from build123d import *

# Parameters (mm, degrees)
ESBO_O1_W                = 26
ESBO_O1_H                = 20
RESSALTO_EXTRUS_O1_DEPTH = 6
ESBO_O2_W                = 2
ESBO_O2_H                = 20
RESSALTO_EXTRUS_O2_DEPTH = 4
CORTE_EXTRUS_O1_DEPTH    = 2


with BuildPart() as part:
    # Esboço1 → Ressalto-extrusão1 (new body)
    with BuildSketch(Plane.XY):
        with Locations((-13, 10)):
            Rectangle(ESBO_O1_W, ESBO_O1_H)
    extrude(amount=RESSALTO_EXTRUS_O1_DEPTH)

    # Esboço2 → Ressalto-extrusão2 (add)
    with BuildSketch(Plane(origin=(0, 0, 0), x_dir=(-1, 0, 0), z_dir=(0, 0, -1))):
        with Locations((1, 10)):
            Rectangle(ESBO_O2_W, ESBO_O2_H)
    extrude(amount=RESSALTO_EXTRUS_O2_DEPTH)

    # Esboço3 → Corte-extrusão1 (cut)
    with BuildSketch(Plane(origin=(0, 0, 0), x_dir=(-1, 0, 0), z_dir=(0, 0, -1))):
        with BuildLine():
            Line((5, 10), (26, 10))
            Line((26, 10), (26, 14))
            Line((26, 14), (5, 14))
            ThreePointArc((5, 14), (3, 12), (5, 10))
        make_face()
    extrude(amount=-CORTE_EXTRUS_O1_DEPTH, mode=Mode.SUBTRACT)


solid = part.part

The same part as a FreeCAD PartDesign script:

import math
import FreeCAD as App
import Part
import Sketcher
Q = App.Units.Quantity

doc = App.newDocument("Part")
body = doc.addObject("PartDesign::Body", "Body")

# Sketch on XY plane
sketch1 = body.newObject("Sketcher::SketchObject", "Sketch")
sketch1.AttachmentSupport = (doc.getObject("XY_Plane"), [""])
sketch1.MapMode = "FlatFace"
sketch1.addGeometry([
    Part.LineSegment(App.Vector(-26, 20, 0), App.Vector(-26, 0, 0)),
    Part.LineSegment(App.Vector(-26, 0, 0), App.Vector(0, 0, 0)),
    Part.LineSegment(App.Vector(0, 0, 0), App.Vector(0, 20, 0)),
    Part.LineSegment(App.Vector(0, 20, 0), App.Vector(-26, 20, 0)),
], False)
sketch1.addConstraint([
    Sketcher.Constraint("Coincident", 0, 2, 1, 1),
    Sketcher.Constraint("Coincident", 1, 2, 2, 1),
    Sketcher.Constraint("Coincident", 2, 2, 3, 1),
    Sketcher.Constraint("Coincident", 3, 2, 0, 1),
    Sketcher.Constraint("Vertical", 0),
    Sketcher.Constraint("Horizontal", 1),
    Sketcher.Constraint("Vertical", 2),
    Sketcher.Constraint("Horizontal", 3),
    Sketcher.Constraint("Coincident", 1, 2, -1, 1),
    Sketcher.Constraint("DistanceX", 1, 1, 1, 2, Q("26 mm")),
    Sketcher.Constraint("DistanceY", 0, 2, 0, 1, Q("20 mm")),
])
pad1 = body.newObject("PartDesign::Pad", "Pad")
pad1.Profile = sketch1
pad1.Length = 6

# Sketch on XY plane
sketch2 = body.newObject("Sketcher::SketchObject", "Sketch001")
sketch2.AttachmentSupport = (doc.getObject("XY_Plane"), [""])
sketch2.MapMode = "FlatFace"
sketch2.addGeometry([
    Part.LineSegment(App.Vector(0, 20, 0), App.Vector(0, 0, 0)),
    Part.LineSegment(App.Vector(0, 0, 0), App.Vector(-2, 0, 0)),
    Part.LineSegment(App.Vector(-2, 0, 0), App.Vector(-2, 20, 0)),
    Part.LineSegment(App.Vector(-2, 20, 0), App.Vector(0, 20, 0)),
], False)
sketch2.addConstraint([
    Sketcher.Constraint("Coincident", 0, 2, 1, 1),
    Sketcher.Constraint("Coincident", 1, 2, 2, 1),
    Sketcher.Constraint("Coincident", 2, 2, 3, 1),
    Sketcher.Constraint("Coincident", 3, 2, 0, 1),
    Sketcher.Constraint("Vertical", 0),
    Sketcher.Constraint("Horizontal", 1),
    Sketcher.Constraint("Vertical", 2),
    Sketcher.Constraint("Horizontal", 3),
    Sketcher.Constraint("Coincident", 0, 2, -1, 1),
    Sketcher.Constraint("DistanceX", 1, 2, 1, 1, Q("2 mm")),
    Sketcher.Constraint("DistanceY", 0, 2, 0, 1, Q("20 mm")),
])
pad2 = body.newObject("PartDesign::Pad", "Pad001")
pad2.Profile = sketch2
pad2.Length = 4
pad2.Reversed = True

# Sketch on XY plane
sketch3 = body.newObject("Sketcher::SketchObject", "Sketch002")
sketch3.AttachmentSupport = (doc.getObject("XY_Plane"), [""])
sketch3.MapMode = "FlatFace"
sketch3.addGeometry([
    Part.LineSegment(App.Vector(-5, 10, 0), App.Vector(-26, 10, 0)),
    Part.LineSegment(App.Vector(-26, 10, 0), App.Vector(-26, 14, 0)),
    Part.LineSegment(App.Vector(-26, 14, 0), App.Vector(-5, 14, 0)),
    Part.ArcOfCircle(Part.Circle(App.Vector(-5, 12, 0), App.Vector(0, 0, 1), 2), math.radians(-90), math.radians(90)),
], False)
sketch3.addConstraint([
    Sketcher.Constraint("Coincident", 0, 2, 1, 1),
    Sketcher.Constraint("Coincident", 1, 2, 2, 1),
    Sketcher.Constraint("Tangent", 2, 2, 3, 2),
    Sketcher.Constraint("Tangent", 3, 1, 0, 1),
    Sketcher.Constraint("Horizontal", 0),
    Sketcher.Constraint("Vertical", 1),
    Sketcher.Constraint("Horizontal", 2),
    Sketcher.Constraint("Radius", 3, Q("2 mm")),
    Sketcher.Constraint("DistanceX", 0, 2, 0, 1, Q("21 mm")),
    Sketcher.Constraint("DistanceX", 3, 3, -1, 1, Q("5 mm")),
    Sketcher.Constraint("DistanceY", -1, 1, 3, 3, Q("12 mm")),
])
pocket1 = body.newObject("PartDesign::Pocket", "Pocket")
pocket1.Profile = sketch3
pocket1.Length = 2
pocket1.Reversed = True

doc.recompute()
